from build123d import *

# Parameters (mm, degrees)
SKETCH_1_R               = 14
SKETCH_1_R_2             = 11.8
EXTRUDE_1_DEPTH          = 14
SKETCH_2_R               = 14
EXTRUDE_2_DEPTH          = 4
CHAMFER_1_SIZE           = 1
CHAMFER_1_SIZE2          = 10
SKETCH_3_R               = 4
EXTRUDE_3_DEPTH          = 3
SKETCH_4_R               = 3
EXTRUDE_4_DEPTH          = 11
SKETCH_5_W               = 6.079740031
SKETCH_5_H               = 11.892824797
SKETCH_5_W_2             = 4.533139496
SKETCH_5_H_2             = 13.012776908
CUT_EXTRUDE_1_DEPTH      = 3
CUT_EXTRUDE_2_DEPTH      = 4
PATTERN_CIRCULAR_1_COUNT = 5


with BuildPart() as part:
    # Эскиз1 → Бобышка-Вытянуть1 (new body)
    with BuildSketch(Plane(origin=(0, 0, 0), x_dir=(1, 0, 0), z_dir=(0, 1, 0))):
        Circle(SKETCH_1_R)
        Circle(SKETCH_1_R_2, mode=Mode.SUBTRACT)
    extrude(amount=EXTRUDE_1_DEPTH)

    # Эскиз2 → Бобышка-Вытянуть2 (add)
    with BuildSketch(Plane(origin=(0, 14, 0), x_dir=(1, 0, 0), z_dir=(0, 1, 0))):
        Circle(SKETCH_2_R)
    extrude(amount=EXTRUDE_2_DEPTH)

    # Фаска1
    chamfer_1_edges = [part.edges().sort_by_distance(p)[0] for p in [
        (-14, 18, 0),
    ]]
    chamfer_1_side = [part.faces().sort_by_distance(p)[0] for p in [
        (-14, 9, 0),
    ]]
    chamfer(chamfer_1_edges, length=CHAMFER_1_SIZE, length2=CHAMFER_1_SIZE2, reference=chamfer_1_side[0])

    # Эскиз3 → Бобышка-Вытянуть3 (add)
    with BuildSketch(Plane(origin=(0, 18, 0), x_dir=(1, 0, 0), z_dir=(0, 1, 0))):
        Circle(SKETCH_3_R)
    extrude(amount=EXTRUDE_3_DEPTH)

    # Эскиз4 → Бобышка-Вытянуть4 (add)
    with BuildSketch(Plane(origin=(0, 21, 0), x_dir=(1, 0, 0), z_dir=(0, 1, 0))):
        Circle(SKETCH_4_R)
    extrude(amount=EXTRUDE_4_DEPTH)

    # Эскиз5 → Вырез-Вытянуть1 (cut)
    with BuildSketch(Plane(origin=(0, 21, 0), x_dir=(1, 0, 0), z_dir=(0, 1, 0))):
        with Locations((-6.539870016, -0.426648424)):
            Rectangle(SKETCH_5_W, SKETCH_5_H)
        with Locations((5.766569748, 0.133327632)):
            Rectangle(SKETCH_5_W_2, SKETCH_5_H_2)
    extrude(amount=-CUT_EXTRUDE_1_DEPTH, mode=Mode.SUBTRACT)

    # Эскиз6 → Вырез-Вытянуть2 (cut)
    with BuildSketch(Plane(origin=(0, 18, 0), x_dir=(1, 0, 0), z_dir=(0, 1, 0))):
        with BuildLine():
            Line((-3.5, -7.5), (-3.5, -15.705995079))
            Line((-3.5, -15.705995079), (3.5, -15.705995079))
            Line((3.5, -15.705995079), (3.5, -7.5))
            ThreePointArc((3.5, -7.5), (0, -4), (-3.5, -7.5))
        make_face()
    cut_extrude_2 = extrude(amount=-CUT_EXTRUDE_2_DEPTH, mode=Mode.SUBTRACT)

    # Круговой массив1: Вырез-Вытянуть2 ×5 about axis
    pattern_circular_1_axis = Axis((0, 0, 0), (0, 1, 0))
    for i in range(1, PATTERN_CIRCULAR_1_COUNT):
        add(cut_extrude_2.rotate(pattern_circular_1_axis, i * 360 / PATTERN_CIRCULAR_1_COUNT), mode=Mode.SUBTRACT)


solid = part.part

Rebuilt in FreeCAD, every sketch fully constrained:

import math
import FreeCAD as App
import Part
import Sketcher

V = App.Vector
Q = App.Units.Quantity


def edges_at(feature, points):
    """Names of the edges that pass closest to the given points."""
    edges = feature.Shape.Edges
    near = lambda p: min(range(len(edges)), key=lambda i: edges[i].distToShape(Part.Vertex(*p))[0])
    return sorted({f"Edge{near(p) + 1}" for p in points})


def add_polygon(sketch, points):
    """Adds a closed chain of lines whose ends are joined by coincident constraints."""
    first, n = sketch.GeometryCount, len(points)
    for a, b in zip(points, points[1:] + points[:1]):
        sketch.addGeometry(Part.LineSegment(App.Vector(*a, 0), App.Vector(*b, 0)), False)
    for i in range(n):
        sketch.addConstraint(Sketcher.Constraint("Coincident", first + i, 2, first + (i + 1) % n, 1))

doc = App.newDocument("Part")
body = doc.addObject("PartDesign::Body", "Body")

# Sketch on XZ plane
sketch1 = body.newObject("Sketcher::SketchObject", "Sketch")
sketch1.AttachmentSupport = (doc.getObject("XZ_Plane"), [""])
sketch1.MapMode = "FlatFace"
sketch1.addGeometry([
    Part.Circle(V(0, 0, 0), V(0, 0, 1), 14),
    Part.Circle(V(0, 0, 0), V(0, 0, 1), 12),
], False)
sketch1.addConstraint([
    Sketcher.Constraint("Coincident", 0, 3, -1, 1),
    Sketcher.Constraint("Coincident", 1, 3, -1, 1),
    Sketcher.Constraint("Diameter", 0, Q("28 mm")),
    Sketcher.Constraint("Diameter", 1, Q("23.6 mm")),
])
pad1 = body.newObject("PartDesign::Pad", "Pad")
pad1.Profile = sketch1
pad1.Length = 14
pad1.Reversed = True

# Sketch on XZ plane
sketch2 = body.newObject("Sketcher::SketchObject", "Sketch001")
sketch2.AttachmentSupport = (doc.getObject("XZ_Plane"), [""])
sketch2.MapMode = "FlatFace"
sketch2.AttachmentOffset = App.Placement(V(0, 0, -14), App.Rotation())
sketch2.addGeometry(Part.Circle(V(0, 0, 0), V(0, 0, 1), 14), False)
sketch2.addConstraint([
    Sketcher.Constraint("Coincident", 0, 3, -1, 1),
    Sketcher.Constraint("Diameter", 0, Q("28 mm")),
])
pad2 = body.newObject("PartDesign::Pad", "Pad001")
pad2.Profile = sketch2
pad2.Length = 4
pad2.Reversed = True
doc.recompute()

chamfer = body.newObject("PartDesign::Chamfer", "Chamfer")
chamfer.Base = (pad2, edges_at(pad2, [(-14, 18, 0)]))
chamfer.ChamferType = "Two distances"
chamfer.Size = 1
chamfer.Size2 = 10

# Sketch on XZ plane
sketch3 = body.newObject("Sketcher::SketchObject", "Sketch002")
sketch3.AttachmentSupport = (doc.getObject("XZ_Plane"), [""])
sketch3.MapMode = "FlatFace"
sketch3.AttachmentOffset = App.Placement(V(0, 0, -18), App.Rotation())
sketch3.addGeometry(Part.Circle(V(0, 0, 0), V(0, 0, 1), 4), False)
sketch3.addConstraint([
    Sketcher.Constraint("Coincident", 0, 3, -1, 1),
    Sketcher.Constraint("Diameter", 0, Q("8 mm")),
])
pad3 = body.newObject("PartDesign::Pad", "Pad002")
pad3.Profile = sketch3
pad3.Length = 3
pad3.Reversed = True

# Sketch on XZ plane
sketch4 = body.newObject("Sketcher::SketchObject", "Sketch003")
sketch4.AttachmentSupport = (doc.getObject("XZ_Plane"), [""])
sketch4.MapMode = "FlatFace"
sketch4.AttachmentOffset = App.Placement(V(0, 0, -21), App.Rotation())
sketch4.addGeometry(Part.Circle(V(0, 0, 0), V(0, 0, 1), 3), False)
sketch4.addConstraint([
    Sketcher.Constraint("Coincident", 0, 3, -1, 1),
    Sketcher.Constraint("Diameter", 0, Q("6 mm")),
])
pad4 = body.newObject("PartDesign::Pad", "Pad003")
pad4.Profile = sketch4
pad4.Length = 11
pad4.Reversed = True

# Sketch on XZ plane
sketch5 = body.newObject("Sketcher::SketchObject", "Sketch004")
sketch5.AttachmentSupport = (doc.getObject("XZ_Plane"), [""])
sketch5.MapMode = "FlatFace"
sketch5.AttachmentOffset = App.Placement(V(0, 0, -21), App.Rotation())
add_polygon(sketch5, [(-9.6, -5.5), (-9.6, 6.4), (-3.5, 6.4), (-3.5, -5.5)])  # lines 0-3
add_polygon(sketch5, [(3.5, -6.6), (3.5, 6.4), (8, 6.4), (8, -6.6)])  # lines 4-7
sketch5.addConstraint([
    Sketcher.Constraint("Vertical", 0),
    Sketcher.Constraint("Horizontal", 1),
    Sketcher.Constraint("Vertical", 2),
    Sketcher.Constraint("Horizontal", 3),
    Sketcher.Constraint("Vertical", 4),
    Sketcher.Constraint("Horizontal", 5),
    Sketcher.Constraint("Vertical", 6),
    Sketcher.Constraint("Horizontal", 7),
    Sketcher.Constraint("Symmetric", 1, 2, 4, 2, -2),
    Sketcher.Constraint("DistanceX", 1, 2, 4, 2, Q("7 mm")),
    Sketcher.Constraint("DistanceX", 1, 1, 1, 2, Q("6.07974 mm")),
    Sketcher.Constraint("DistanceX", 5, 1, 5, 2, Q("4.533139 mm")),
    Sketcher.Constraint("DistanceY", 0, 1, 0, 2, Q("11.892825 mm")),
    Sketcher.Constraint("DistanceY", 4, 1, 4, 2, Q("13.012777 mm")),
    Sketcher.Constraint("DistanceY", -1, 1, 0, 2, Q("6.373061 mm")),
])
pocket1 = body.newObject("PartDesign::Pocket", "Pocket")
pocket1.Profile = sketch5
pocket1.Length = 3
pocket1.Reversed = True

# Sketch on XZ plane
sketch6 = body.newObject("Sketcher::SketchObject", "Sketch005")
sketch6.AttachmentSupport = (doc.getObject("XZ_Plane"), [""])
sketch6.MapMode = "FlatFace"
sketch6.AttachmentOffset = App.Placement(V(0, 0, -18), App.Rotation())
sketch6.addGeometry([
    Part.LineSegment(V(-3.5, 7.5, 0), V(-3.5, 15.7, 0)),
    Part.LineSegment(V(-3.5, 15.7, 0), V(3.5, 15.7, 0)),
    Part.LineSegment(V(3.5, 15.7, 0), V(3.5, 7.5, 0)),
    Part.ArcOfCircle(Part.Circle(V(0, 7.5, 0), V(0, 0, 1), 3.5), math.radians(180), math.radians(360)),
], False)
sketch6.addConstraint([
    Sketcher.Constraint("Coincident", 0, 2, 1, 1),
    Sketcher.Constraint("Coincident", 1, 2, 2, 1),
    Sketcher.Constraint("Tangent", 2, 2, 3, 2),
    Sketcher.Constraint("Tangent", 3, 1, 0, 1),
    Sketcher.Constraint("Vertical", 0),
    Sketcher.Constraint("Horizontal", 1),
    Sketcher.Constraint("Vertical", 2),
    Sketcher.Constraint("PointOnObject", 3, 3, -2),
    Sketcher.Constraint("Radius", 3, Q("3.5 mm")),
    Sketcher.Constraint("DistanceY", -1, 1, 3, 3, Q("7.5 mm")),
    Sketcher.Constraint("DistanceY", 0, 1, 0, 2, Q("8.205995 mm")),
])
pocket2 = body.newObject("PartDesign::Pocket", "Pocket001")
pocket2.Profile = sketch6
pocket2.Length = 4
pocket2.Reversed = True
doc.recompute()

polarpattern = body.newObject("PartDesign::PolarPattern", "PolarPattern")
polarpattern.Originals = [pocket2]
polarpattern.Axis = (doc.getObject("Y_Axis"), [""])
polarpattern.Angle = 360
polarpattern.Occurrences = 5
body.Tip = polarpattern

doc.recompute()
